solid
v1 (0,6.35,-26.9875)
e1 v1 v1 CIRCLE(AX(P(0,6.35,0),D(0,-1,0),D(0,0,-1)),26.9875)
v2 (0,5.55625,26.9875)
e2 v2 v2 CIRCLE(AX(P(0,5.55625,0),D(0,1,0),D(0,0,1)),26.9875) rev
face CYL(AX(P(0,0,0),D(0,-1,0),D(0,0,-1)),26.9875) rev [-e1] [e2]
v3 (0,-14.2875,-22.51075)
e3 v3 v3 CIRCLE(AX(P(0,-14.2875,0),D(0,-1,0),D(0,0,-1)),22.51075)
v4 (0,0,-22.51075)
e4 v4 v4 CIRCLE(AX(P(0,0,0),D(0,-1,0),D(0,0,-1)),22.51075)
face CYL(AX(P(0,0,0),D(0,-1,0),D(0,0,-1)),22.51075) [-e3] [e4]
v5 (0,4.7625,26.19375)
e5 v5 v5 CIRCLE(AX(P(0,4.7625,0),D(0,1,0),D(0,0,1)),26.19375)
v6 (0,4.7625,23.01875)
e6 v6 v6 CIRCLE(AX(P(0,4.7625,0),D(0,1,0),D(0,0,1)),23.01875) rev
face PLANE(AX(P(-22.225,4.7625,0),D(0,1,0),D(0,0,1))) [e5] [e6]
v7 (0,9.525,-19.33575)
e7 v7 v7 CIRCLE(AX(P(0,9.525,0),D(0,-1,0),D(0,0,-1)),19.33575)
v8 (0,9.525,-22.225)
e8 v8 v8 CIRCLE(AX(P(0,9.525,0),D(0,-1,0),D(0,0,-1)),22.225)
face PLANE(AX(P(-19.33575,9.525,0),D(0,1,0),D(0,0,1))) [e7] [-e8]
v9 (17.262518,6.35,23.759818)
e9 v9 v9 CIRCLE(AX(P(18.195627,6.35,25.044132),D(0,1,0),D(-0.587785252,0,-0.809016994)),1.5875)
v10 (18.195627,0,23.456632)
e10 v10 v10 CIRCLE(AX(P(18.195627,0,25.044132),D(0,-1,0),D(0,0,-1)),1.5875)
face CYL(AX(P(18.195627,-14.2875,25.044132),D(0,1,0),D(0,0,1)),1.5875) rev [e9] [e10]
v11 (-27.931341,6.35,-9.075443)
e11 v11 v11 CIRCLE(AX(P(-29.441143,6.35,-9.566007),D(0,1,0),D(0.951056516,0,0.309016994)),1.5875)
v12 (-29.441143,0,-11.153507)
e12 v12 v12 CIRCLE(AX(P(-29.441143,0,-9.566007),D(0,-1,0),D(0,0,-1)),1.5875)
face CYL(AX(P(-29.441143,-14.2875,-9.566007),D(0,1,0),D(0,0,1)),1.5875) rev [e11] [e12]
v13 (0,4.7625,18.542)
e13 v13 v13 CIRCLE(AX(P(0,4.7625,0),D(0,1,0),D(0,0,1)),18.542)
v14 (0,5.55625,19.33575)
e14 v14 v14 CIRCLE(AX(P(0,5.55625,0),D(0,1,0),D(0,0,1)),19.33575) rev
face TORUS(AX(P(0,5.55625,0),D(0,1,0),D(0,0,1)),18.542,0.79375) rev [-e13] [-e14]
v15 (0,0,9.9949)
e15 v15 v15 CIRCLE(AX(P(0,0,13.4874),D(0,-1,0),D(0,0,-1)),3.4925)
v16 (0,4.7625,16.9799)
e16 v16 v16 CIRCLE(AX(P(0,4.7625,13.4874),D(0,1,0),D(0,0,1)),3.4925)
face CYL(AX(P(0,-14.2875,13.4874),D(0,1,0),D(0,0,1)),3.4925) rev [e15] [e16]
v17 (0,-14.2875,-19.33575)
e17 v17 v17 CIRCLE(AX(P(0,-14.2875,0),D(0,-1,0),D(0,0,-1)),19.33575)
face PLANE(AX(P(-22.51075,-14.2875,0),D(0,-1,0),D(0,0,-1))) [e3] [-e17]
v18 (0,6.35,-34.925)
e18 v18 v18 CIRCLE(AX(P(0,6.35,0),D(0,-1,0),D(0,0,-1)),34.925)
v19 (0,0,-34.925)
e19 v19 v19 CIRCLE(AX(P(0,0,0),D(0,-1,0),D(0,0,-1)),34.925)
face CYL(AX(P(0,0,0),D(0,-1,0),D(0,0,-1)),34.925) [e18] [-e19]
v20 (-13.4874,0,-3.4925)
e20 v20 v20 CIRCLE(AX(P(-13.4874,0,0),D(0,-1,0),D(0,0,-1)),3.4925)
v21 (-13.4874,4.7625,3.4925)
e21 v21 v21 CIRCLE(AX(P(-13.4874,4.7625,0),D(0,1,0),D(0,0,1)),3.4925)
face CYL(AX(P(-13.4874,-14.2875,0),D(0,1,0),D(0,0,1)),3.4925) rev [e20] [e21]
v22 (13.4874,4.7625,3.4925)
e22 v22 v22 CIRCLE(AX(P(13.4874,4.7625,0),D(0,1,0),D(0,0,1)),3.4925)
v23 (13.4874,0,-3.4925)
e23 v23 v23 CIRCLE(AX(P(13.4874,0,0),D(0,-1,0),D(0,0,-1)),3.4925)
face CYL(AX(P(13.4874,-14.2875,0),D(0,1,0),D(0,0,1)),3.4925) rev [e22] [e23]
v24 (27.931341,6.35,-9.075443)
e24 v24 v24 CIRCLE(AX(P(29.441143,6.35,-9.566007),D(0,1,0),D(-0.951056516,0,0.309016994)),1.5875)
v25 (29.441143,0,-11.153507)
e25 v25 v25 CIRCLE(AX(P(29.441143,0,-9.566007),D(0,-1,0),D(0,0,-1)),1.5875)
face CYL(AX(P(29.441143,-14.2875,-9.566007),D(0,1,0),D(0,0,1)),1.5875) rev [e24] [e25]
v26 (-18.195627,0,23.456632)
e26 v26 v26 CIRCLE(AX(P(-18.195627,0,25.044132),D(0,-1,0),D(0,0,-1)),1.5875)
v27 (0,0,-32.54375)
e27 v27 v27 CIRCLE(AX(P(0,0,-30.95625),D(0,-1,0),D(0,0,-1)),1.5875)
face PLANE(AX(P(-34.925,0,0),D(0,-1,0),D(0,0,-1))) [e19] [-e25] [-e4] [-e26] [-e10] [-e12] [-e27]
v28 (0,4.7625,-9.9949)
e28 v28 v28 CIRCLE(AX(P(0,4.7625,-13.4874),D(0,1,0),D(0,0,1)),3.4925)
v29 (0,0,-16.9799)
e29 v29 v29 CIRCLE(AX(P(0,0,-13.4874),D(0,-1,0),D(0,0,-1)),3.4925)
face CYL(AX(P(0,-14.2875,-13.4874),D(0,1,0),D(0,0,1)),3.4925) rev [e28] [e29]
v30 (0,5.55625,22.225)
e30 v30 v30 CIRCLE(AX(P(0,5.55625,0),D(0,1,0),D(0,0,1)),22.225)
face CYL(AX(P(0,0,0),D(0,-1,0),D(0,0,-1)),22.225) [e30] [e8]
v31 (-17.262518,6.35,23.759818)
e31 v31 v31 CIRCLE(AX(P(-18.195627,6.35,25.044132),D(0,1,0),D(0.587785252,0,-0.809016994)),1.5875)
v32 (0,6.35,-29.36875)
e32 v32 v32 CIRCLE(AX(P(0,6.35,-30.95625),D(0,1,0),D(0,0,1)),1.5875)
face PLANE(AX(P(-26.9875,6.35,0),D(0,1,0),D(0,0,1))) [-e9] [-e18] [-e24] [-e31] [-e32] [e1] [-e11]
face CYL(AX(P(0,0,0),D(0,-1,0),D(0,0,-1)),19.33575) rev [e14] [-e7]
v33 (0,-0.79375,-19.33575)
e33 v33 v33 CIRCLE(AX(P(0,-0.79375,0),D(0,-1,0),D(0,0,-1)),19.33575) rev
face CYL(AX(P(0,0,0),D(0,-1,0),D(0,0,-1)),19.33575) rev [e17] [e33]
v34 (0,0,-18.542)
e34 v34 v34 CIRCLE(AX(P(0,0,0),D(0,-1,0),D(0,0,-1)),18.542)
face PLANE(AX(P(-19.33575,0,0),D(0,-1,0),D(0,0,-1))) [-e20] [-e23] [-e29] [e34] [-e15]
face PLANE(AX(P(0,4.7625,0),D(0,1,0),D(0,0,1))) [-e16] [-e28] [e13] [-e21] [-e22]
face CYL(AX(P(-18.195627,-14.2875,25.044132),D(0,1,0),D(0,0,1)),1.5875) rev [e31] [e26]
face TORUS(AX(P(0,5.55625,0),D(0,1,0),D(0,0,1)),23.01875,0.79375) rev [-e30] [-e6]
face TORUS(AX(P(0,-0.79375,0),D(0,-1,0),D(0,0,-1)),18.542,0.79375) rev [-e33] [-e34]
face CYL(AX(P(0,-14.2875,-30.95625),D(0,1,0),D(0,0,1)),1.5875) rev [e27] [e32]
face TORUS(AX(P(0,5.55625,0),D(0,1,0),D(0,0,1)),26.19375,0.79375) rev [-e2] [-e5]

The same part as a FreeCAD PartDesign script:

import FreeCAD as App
import Part
import Sketcher
Q = App.Units.Quantity


def edges_at(feature, points):
    """Names of the edges that pass closest to the given points."""
    edges = feature.Shape.Edges
    near = lambda p: min(range(len(edges)), key=lambda i: edges[i].distToShape(Part.Vertex(*p))[0])
    return sorted({f"Edge{near(p) + 1}" for p in points})

doc = App.newDocument("Part")
body = doc.addObject("PartDesign::Body", "Body")

sketch1 = body.newObject("Sketcher::SketchObject", "Sketch")
sketch1.AttachmentSupport = (doc.getObject("XY_Plane"), [""])
sketch1.MapMode = "FlatFace"
sketch1.addGeometry([
    Part.LineSegment(App.Vector(19.33575, 0, 0), App.Vector(19.33575, -14.2875, 0)),
    Part.LineSegment(App.Vector(19.33575, -14.2875, 0), App.Vector(22.51075, -14.2875, 0)),
    Part.LineSegment(App.Vector(22.51075, -14.2875, 0), App.Vector(22.51075, 0, 0)),
    Part.LineSegment(App.Vector(22.51075, 0, 0), App.Vector(34.925, 0, 0)),
    Part.LineSegment(App.Vector(34.925, 0, 0), App.Vector(34.925, 6.35, 0)),
    Part.LineSegment(App.Vector(34.925, 6.35, 0), App.Vector(26.9875, 6.35, 0)),
    Part.LineSegment(App.Vector(26.9875, 6.35, 0), App.Vector(26.9875, 4.7625, 0)),
    Part.LineSegment(App.Vector(26.9875, 4.7625, 0), App.Vector(22.225, 4.7625, 0)),
    Part.LineSegment(App.Vector(22.225, 4.7625, 0), App.Vector(22.225, 9.525, 0)),
    Part.LineSegment(App.Vector(22.225, 9.525, 0), App.Vector(19.33575, 9.525, 0)),
    Part.LineSegment(App.Vector(19.33575, 9.525, 0), App.Vector(19.33575, 4.7625, 0)),
    Part.LineSegment(App.Vector(19.33575, 4.7625, 0), App.Vector(0, 4.7625, 0)),
    Part.LineSegment(App.Vector(0, 4.7625, 0), App.Vector(0, 0, 0)),
    Part.LineSegment(App.Vector(0, 0, 0), App.Vector(19.33575, 0, 0)),
], False)
sketch1.addConstraint([
    Sketcher.Constraint("Coincident", 0, 2, 1, 1),
    Sketcher.Constraint("Coincident", 1, 2, 2, 1),
    Sketcher.Constraint("Coincident", 2, 2, 3, 1),
    Sketcher.Constraint("Coincident", 3, 2, 4, 1),
    Sketcher.Constraint("Coincident", 4, 2, 5, 1),
    Sketcher.Constraint("Coincident", 5, 2, 6, 1),
    Sketcher.Constraint("Coincident", 6, 2, 7, 1),
    Sketcher.Constraint("Coincident", 7, 2, 8, 1),
    Sketcher.Constraint("Coincident", 8, 2, 9, 1),
    Sketcher.Constraint("Coincident", 9, 2, 10, 1),
    Sketcher.Constraint("Coincident", 10, 2, 11, 1),
    Sketcher.Constraint("Coincident", 11, 2, 12, 1),
    Sketcher.Constraint("Coincident", 12, 2, 13, 1),
    Sketcher.Constraint("Coincident", 13, 2, 0, 1),
    Sketcher.Constraint("Vertical", 0),
    Sketcher.Constraint("Horizontal", 1),
    Sketcher.Constraint("Vertical", 2),
    Sketcher.Constraint("Horizontal", 3),
    Sketcher.Constraint("Vertical", 4),
    Sketcher.Constraint("Horizontal", 5),
    Sketcher.Constraint("Vertical", 6),
    Sketcher.Constraint("Horizontal", 7),
    Sketcher.Constraint("Vertical", 8),
    Sketcher.Constraint("Horizontal", 9),
    Sketcher.Constraint("Vertical", 10),
    Sketcher.Constraint("Horizontal", 11),
    Sketcher.Constraint("Vertical", 12),
    Sketcher.Constraint("Horizontal", 13),
    Sketcher.Constraint("Coincident", 12, 2, -1, 1),
    Sketcher.Constraint("PointOnObject", 2, 2, -1),
    Sketcher.Constraint("Horizontal", 7, 2, 10, 2),
    Sketcher.Constraint("Vertical", 0, 2, 9, 2),
    Sketcher.Constraint("Equal", 7, 8),
    Sketcher.Constraint("Equal", 10, 12),
    Sketcher.Constraint("DistanceY", 4, 1, 4, 2, Q("0.25 in")),
    Sketcher.Constraint("DistanceX", 7, 2, 4, 2, Q("0.5 in")),
    Sketcher.Constraint("DistanceX", 1, 1, 1, 2, Q("0.125 in")),
    Sketcher.Constraint("DistanceX", 5, 2, 5, 1, Q("0.3125 in")),
    Sketcher.Constraint("DistanceY", 0, 2, 0, 1, Q("0.5625 in")),
    Sketcher.Constraint("DistanceX", -1, 1, 3, 2, Q("1.375 in")),
    Sketcher.Constraint("DistanceX", 3, 1, 3, 2, 12.41425),
])
revolution = body.newObject("PartDesign::Revolution", "Revolution")
revolution.Profile = sketch1
revolution.ReferenceAxis = (sketch1, ["V_Axis"])
revolution.Angle = 360

sketch2 = body.newObject("Sketcher::SketchObject", "Sketch001")
sketch2.AttachmentSupport = (doc.getObject("XZ_Plane"), [""])
sketch2.MapMode = "FlatFace"
sketch2.AttachmentOffset = App.Placement(App.Vector(0, 0, -0.1875 * 25.4), App.Rotation())
sketch2.addGeometry([
    Part.Circle(App.Vector(-13.4874, 0, 0), App.Vector(0, 0, 1), 3.4925),
    Part.Circle(App.Vector(0, -13.4874, 0), App.Vector(0, 0, 1), 3.4925),
    Part.Circle(App.Vector(13.4874, 0, 0), App.Vector(0, 0, 1), 3.4925),
    Part.Circle(App.Vector(0, 13.4874, 0), App.Vector(0, 0, 1), 3.4925),
], False)
sketch2.addConstraint([
    Sketcher.Constraint("Equal", 0, 1),
    Sketcher.Constraint("Equal", 1, 2),
    Sketcher.Constraint("Equal", 2, 3),
    Sketcher.Constraint("Symmetric", 0, 3, 2, 3, -1, 1),
    Sketcher.Constraint("Symmetric", 1, 3, 3, 3, -1, 1),
    Sketcher.Constraint("PointOnObject", 0, 3, -1),
    Sketcher.Constraint("PointOnObject", 1, 3, -2),
    Sketcher.Constraint("Diameter", 0, Q("0.275 in")),
    Sketcher.Constraint("DistanceX", 0, 3, -1, 1, Q("0.531 in")),
    Sketcher.Constraint("DistanceY", 1, 3, -1, 1, Q("0.531 in")),
])
pocket1 = body.newObject("PartDesign::Pocket", "Pocket")
pocket1.Profile = sketch2
pocket1.Type = "ThroughAll"
pocket1.Reversed = True

sketch3 = body.newObject("Sketcher::SketchObject", "Sketch002")
sketch3.AttachmentSupport = (doc.getObject("XZ_Plane"), [""])
sketch3.MapMode = "FlatFace"
sketch3.AttachmentOffset = App.Placement(App.Vector(0, 0, -0.25 * 25.4), App.Rotation())
sketch3.addGeometry(Part.Circle(App.Vector(0, -30.95625, 0), App.Vector(0, 0, 1), 1.5875), False)
sketch3.addConstraint([
    Sketcher.Constraint("PointOnObject", 0, 3, -2),
    Sketcher.Constraint("Diameter", 0, Q("0.125 in")),
    Sketcher.Constraint("DistanceY", 0, 3, -1, 1, Q("1.21875 in")),
])
pocket2 = body.newObject("PartDesign::Pocket", "Pocket001")
pocket2.Profile = sketch3
pocket2.Type = "ThroughAll"
pocket2.Reversed = True
doc.recompute()

polarpattern = body.newObject("PartDesign::PolarPattern", "PolarPattern")
polarpattern.Originals = [pocket2]
polarpattern.Axis = (doc.getObject("Y_Axis"), [""])
polarpattern.Angle = 360
polarpattern.Occurrences = 5
body.Tip = polarpattern
doc.recompute()

fillet = body.newObject("PartDesign::Fillet", "Fillet")
fillet.Base = (polarpattern, edges_at(polarpattern, [
    (0, 4.763, 26.988),
    (0, 4.763, 22.225),
    (0, 4.763, 19.336),
    (0, 0, 19.336),
]))
fillet.Radius = Q("0.03125 in")

doc.recompute()
